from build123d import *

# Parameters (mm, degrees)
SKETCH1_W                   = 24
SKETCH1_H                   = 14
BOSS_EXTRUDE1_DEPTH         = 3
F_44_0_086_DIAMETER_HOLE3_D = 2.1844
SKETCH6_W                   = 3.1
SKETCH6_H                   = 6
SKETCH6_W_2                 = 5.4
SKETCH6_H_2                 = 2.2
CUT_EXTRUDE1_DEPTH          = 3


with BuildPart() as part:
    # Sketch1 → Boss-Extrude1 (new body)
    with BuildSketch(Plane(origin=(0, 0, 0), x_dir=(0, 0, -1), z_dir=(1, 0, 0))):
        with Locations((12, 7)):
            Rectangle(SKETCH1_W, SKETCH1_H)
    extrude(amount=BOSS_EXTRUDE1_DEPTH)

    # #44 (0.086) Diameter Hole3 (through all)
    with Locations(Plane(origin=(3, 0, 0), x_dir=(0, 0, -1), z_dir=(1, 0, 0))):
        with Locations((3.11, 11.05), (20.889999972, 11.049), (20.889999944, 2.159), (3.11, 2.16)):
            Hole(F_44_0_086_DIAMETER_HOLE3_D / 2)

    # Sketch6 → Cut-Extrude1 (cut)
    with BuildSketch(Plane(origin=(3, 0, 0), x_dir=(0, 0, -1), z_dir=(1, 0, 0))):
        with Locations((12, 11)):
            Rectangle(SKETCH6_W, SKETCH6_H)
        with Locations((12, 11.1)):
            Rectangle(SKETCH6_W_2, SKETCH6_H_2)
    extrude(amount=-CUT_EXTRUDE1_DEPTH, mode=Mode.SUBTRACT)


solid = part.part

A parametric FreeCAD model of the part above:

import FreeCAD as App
import Part
import Sketcher

V = App.Vector
Q = App.Units.Quantity

doc = App.newDocument("Part")
body = doc.addObject("PartDesign::Body", "Body")

sketch1 = body.newObject("Sketcher::SketchObject", "Sketch")
sketch1.AttachmentSupport = (doc.getObject("YZ_Plane"), [""])
sketch1.MapMode = "FlatFace"
sketch1.addGeometry(Part.LineSegment(V(14, 0, 0), V(0, 0, 0)), False)
sketch1.addGeometry(Part.LineSegment(V(0, 0, 0), V(0, -24, 0)), False)
sketch1.addGeometry(Part.LineSegment(V(0, -24, 0), V(14, -24, 0)), False)
sketch1.addGeometry(Part.LineSegment(V(14, -24, 0), V(14, 0, 0)), False)
sketch1.addConstraint(Sketcher.Constraint("Coincident", 0, 2, 1, 1))
sketch1.addConstraint(Sketcher.Constraint("Coincident", 1, 2, 2, 1))
sketch1.addConstraint(Sketcher.Constraint("Coincident", 2, 2, 3, 1))
sketch1.addConstraint(Sketcher.Constraint("Coincident", 3, 2, 0, 1))
sketch1.addConstraint(Sketcher.Constraint("Horizontal", 0))
sketch1.addConstraint(Sketcher.Constraint("Vertical", 1))
sketch1.addConstraint(Sketcher.Constraint("Horizontal", 2))
sketch1.addConstraint(Sketcher.Constraint("Vertical", 3))
sketch1.addConstraint(Sketcher.Constraint("Coincident", 0, 2, -1, 1))
sketch1.addConstraint(Sketcher.Constraint("DistanceX", 0, 2, 0, 1, Q("14 mm")))
sketch1.addConstraint(Sketcher.Constraint("DistanceY", 1, 2, 1, 1, Q("24 mm")))
pad1 = body.newObject("PartDesign::Pad", "Pad")
pad1.Profile = sketch1
pad1.Length = 3

sketch2 = body.newObject("Sketcher::SketchObject", "Sketch001")
sketch2.AttachmentSupport = (doc.getObject("YZ_Plane"), [""])
sketch2.MapMode = "FlatFace"
sketch2.AttachmentOffset = App.Placement(V(0, 0, 3), App.Rotation())
sketch2.addGeometry(Part.Circle(V(11.05, -3.11, 0), V(0, 0, 1), 1.0922), False)
sketch2.addGeometry(Part.Circle(V(11.049, -20.89, 0), V(0, 0, 1), 1.0922), False)
sketch2.addGeometry(Part.Circle(V(2.159, -20.89, 0), V(0, 0, 1), 1.0922), False)
sketch2.addGeometry(Part.Circle(V(2.16, -3.11, 0), V(0, 0, 1), 1.0922), False)
sketch2.addConstraint(Sketcher.Constraint("Equal", 0, 1))
sketch2.addConstraint(Sketcher.Constraint("Equal", 1, 2))
sketch2.addConstraint(Sketcher.Constraint("Equal", 2, 3))
sketch2.addConstraint(Sketcher.Constraint("Horizontal", 1, 3, 2, 3))
sketch2.addConstraint(Sketcher.Constraint("Horizontal", 0, 3, 3, 3))
sketch2.addConstraint(Sketcher.Constraint("Diameter", 0, Q("2.1844 mm")))
sketch2.addConstraint(Sketcher.Constraint("DistanceX", -1, 1, 0, 3, Q("11.05 mm")))
sketch2.addConstraint(Sketcher.Constraint("DistanceY", 0, 3, -1, 1, Q("3.11 mm")))
sketch2.addConstraint(Sketcher.Constraint("DistanceY", 1, 3, -1, 1, Q("20.89 mm")))
sketch2.addConstraint(Sketcher.Constraint("DistanceX", -1, 1, 3, 3, Q("2.16 mm")))
sketch2.addConstraint(Sketcher.Constraint("DistanceX", 2, 3, 1, 3, Q("8.89 mm")))
sketch2.addConstraint(Sketcher.Constraint("DistanceX", -1, 1, 1, 3, Q("11.049 mm")))
doc.recompute()
hole = body.newObject("PartDesign::Hole", "Hole")
hole.Profile = sketch2
hole.ThreadType = "None"
hole.Diameter = 2.1844
hole.DepthType = "ThroughAll"

sketch3 = body.newObject("Sketcher::SketchObject", "Sketch002")
sketch3.AttachmentSupport = (doc.getObject("YZ_Plane"), [""])
sketch3.MapMode = "FlatFace"
sketch3.AttachmentOffset = App.Placement(V(0, 0, 3), App.Rotation())
sketch3.addGeometry(Part.LineSegment(V(10, -10.45, 0), V(8, -10.45, 0)), False)
sketch3.addGeometry(Part.LineSegment(V(8, -10.45, 0), V(8, -13.55, 0)), False)
sketch3.addGeometry(Part.LineSegment(V(8, -13.55, 0), V(10, -13.55, 0)), False)
sketch3.addGeometry(Part.LineSegment(V(10, -13.55, 0), V(10, -14.7, 0)), False)
sketch3.addGeometry(Part.LineSegment(V(10, -14.7, 0), V(12.2, -14.7, 0)), False)
sketch3.addGeometry(Part.LineSegment(V(12.2, -14.7, 0), V(12.2, -13.55, 0)), False)
sketch3.addGeometry(Part.LineSegment(V(12.2, -13.55, 0), V(14, -13.55, 0)), False)
sketch3.addGeometry(Part.LineSegment(V(14, -13.55, 0), V(14, -10.45, 0)), False)
sketch3.addGeometry(Part.LineSegment(V(14, -10.45, 0), V(12.2, -10.45, 0)), False)
sketch3.addGeometry(Part.LineSegment(V(12.2, -10.45, 0), V(12.2, -9.3, 0)), False)
sketch3.addGeometry(Part.LineSegment(V(12.2, -9.3, 0), V(10, -9.3, 0)), False)
sketch3.addGeometry(Part.LineSegment(V(10, -9.3, 0), V(10, -10.45, 0)), False)
sketch3.addConstraint(Sketcher.Constraint("Coincident", 0, 2, 1, 1))
sketch3.addConstraint(Sketcher.Constraint("Coincident", 1, 2, 2, 1))
sketch3.addConstraint(Sketcher.Constraint("Coincident", 2, 2, 3, 1))
sketch3.addConstraint(Sketcher.Constraint("Coincident", 3, 2, 4, 1))
sketch3.addConstraint(Sketcher.Constraint("Coincident", 4, 2, 5, 1))
sketch3.addConstraint(Sketcher.Constraint("Coincident", 5, 2, 6, 1))
sketch3.addConstraint(Sketcher.Constraint("Coincident", 6, 2, 7, 1))
sketch3.addConstraint(Sketcher.Constraint("Coincident", 7, 2, 8, 1))
sketch3.addConstraint(Sketcher.Constraint("Coincident", 8, 2, 9, 1))
sketch3.addConstraint(Sketcher.Constraint("Coincident", 9, 2, 10, 1))
sketch3.addConstraint(Sketcher.Constraint("Coincident", 10, 2, 11, 1))
sketch3.addConstraint(Sketcher.Constraint("Coincident", 11, 2, 0, 1))
sketch3.addConstraint(Sketcher.Constraint("Horizontal", 0))
sketch3.addConstraint(Sketcher.Constraint("Vertical", 1))
sketch3.addConstraint(Sketcher.Constraint("Horizontal", 2))
sketch3.addConstraint(Sketcher.Constraint("Vertical", 3))
sketch3.addConstraint(Sketcher.Constraint("Horizontal", 4))
sketch3.addConstraint(Sketcher.Constraint("Vertical", 5))
sketch3.addConstraint(Sketcher.Constraint("Horizontal", 6))
sketch3.addConstraint(Sketcher.Constraint("Vertical", 7))
sketch3.addConstraint(Sketcher.Constraint("Horizontal", 8))
sketch3.addConstraint(Sketcher.Constraint("Vertical", 9))
sketch3.addConstraint(Sketcher.Constraint("Horizontal", 10))
sketch3.addConstraint(Sketcher.Constraint("Vertical", 11))
sketch3.addConstraint(Sketcher.Constraint("Horizontal", 2, 2, 5, 2))
sketch3.addConstraint(Sketcher.Constraint("Horizontal", 0, 2, 7, 2))
sketch3.addConstraint(Sketcher.Constraint("Vertical", 5, 2, 8, 2))
sketch3.addConstraint(Sketcher.Constraint("Vertical", 3, 2, 10, 2))
sketch3.addConstraint(Sketcher.Constraint("Equal", 5, 9))
sketch3.addConstraint(Sketcher.Constraint("DistanceX", 0, 2, 0, 1, Q("2 mm")))
sketch3.addConstraint(Sketcher.Constraint("DistanceX", 4, 1, 4, 2, Q("2.2 mm")))
sketch3.addConstraint(Sketcher.Constraint("DistanceX", 6, 1, 6, 2, Q("1.8 mm")))
sketch3.addConstraint(Sketcher.Constraint("DistanceY", 1, 2, 1, 1, Q("3.1 mm")))
sketch3.addConstraint(Sketcher.Constraint("DistanceX", -1, 1, 0, 2, Q("8 mm")))
sketch3.addConstraint(Sketcher.Constraint("DistanceY", 3, 2, 3, 1, Q("1.15 mm")))
sketch3.addConstraint(Sketcher.Constraint("DistanceY", 3, 2, -1, 1, Q("14.7 mm")))
pocket1 = body.newObject("PartDesign::Pocket", "Pocket")
pocket1.Profile = sketch3
pocket1.Length = 3

doc.recompute()
